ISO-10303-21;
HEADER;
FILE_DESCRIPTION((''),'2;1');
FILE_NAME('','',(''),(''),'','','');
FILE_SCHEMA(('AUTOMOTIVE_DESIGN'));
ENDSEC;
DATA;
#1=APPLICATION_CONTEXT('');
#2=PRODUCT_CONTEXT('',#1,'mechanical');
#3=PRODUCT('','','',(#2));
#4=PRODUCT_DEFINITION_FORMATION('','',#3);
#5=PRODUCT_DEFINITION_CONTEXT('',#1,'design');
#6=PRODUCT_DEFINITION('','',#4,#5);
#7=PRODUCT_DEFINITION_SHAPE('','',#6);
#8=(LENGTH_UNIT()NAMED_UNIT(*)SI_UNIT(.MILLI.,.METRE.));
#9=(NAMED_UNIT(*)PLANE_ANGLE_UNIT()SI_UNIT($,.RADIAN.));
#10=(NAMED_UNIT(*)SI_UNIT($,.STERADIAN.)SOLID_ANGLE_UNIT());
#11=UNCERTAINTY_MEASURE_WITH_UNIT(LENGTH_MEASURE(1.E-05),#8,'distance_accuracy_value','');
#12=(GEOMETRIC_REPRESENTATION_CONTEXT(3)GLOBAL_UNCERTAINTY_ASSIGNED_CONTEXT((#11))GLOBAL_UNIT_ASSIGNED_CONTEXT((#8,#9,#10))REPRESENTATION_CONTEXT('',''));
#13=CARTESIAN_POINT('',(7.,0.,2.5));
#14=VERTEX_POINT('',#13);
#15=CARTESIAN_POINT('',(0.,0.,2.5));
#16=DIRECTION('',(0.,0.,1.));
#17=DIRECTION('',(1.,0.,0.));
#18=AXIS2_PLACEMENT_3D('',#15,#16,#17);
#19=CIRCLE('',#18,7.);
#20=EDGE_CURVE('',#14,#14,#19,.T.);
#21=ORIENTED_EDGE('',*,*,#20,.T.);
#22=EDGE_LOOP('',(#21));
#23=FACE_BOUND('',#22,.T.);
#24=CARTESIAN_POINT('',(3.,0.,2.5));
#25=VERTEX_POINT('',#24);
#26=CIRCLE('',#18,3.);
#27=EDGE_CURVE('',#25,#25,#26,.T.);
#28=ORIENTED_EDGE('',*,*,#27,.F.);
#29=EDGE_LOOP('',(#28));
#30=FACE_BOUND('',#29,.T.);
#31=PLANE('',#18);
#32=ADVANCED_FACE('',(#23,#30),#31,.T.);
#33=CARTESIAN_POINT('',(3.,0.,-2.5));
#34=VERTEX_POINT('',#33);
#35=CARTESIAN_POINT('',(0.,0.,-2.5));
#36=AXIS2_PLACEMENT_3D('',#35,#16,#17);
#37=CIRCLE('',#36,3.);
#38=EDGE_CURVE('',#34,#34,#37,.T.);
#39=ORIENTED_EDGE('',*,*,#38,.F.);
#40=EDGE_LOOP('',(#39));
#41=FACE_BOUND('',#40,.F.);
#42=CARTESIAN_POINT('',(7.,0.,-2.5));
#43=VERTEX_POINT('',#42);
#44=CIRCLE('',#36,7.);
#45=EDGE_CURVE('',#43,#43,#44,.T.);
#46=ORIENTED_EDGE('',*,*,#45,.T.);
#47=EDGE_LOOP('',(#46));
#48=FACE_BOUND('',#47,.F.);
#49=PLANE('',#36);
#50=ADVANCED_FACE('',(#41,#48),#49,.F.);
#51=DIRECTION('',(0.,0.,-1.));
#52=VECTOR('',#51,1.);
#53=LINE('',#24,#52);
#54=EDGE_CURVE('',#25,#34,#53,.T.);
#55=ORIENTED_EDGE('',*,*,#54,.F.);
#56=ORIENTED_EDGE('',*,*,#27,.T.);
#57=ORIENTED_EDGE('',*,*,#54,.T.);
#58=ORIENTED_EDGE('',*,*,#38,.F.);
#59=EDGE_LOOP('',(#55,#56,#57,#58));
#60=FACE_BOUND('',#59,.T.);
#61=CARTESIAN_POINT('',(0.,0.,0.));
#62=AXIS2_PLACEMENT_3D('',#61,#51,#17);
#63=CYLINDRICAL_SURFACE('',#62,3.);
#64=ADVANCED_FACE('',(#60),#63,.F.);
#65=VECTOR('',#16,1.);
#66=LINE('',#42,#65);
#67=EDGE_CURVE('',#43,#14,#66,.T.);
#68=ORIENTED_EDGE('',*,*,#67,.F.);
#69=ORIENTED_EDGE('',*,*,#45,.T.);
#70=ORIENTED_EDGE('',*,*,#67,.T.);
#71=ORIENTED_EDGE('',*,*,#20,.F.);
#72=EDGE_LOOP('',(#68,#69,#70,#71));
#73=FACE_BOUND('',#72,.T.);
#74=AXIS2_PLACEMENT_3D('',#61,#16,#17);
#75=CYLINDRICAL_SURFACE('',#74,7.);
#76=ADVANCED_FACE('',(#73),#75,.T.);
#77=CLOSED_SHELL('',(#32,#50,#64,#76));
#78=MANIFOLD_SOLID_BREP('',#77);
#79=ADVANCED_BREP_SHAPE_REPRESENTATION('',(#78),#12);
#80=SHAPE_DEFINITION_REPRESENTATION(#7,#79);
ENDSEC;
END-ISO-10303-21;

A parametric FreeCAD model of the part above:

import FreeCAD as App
import Part
import Sketcher

V = App.Vector
Q = App.Units.Quantity

doc = App.newDocument("Part")
body = doc.addObject("PartDesign::Body", "Body")

# Sketch on XY plane
sketch1 = body.newObject("Sketcher::SketchObject", "Sketch")
sketch1.AttachmentSupport = (doc.getObject("XY_Plane"), [""])
sketch1.MapMode = "FlatFace"
sketch1.addGeometry([
    Part.Circle(V(0, 0, 0), V(0, 0, 1), 7),
    Part.Circle(V(0, 0, 0), V(0, 0, 1), 3),
], False)
sketch1.addConstraint([
    Sketcher.Constraint("Coincident", 0, 3, -1, 1),
    Sketcher.Constraint("Coincident", 1, 3, -1, 1),
    Sketcher.Constraint("Diameter", 0, Q("14 mm")),
    Sketcher.Constraint("Diameter", 1, Q("6 mm")),
])
pad1 = body.newObject("PartDesign::Pad", "Pad")
pad1.Profile = sketch1
pad1.Length = 5
pad1.Midplane = True

doc.recompute()
